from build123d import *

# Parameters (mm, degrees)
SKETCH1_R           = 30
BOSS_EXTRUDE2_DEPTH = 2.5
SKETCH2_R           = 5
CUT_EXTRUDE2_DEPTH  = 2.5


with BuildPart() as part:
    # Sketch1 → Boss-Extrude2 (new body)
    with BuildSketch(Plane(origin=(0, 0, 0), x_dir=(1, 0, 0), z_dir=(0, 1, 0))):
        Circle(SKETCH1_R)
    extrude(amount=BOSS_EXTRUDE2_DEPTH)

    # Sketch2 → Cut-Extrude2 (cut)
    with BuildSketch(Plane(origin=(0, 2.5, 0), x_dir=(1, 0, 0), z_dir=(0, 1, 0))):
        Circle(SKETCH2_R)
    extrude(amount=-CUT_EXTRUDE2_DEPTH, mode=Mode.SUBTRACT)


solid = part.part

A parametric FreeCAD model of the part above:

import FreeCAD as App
import Part
import Sketcher
from FreeCAD import Vector
Q = App.Units.Quantity

doc = App.newDocument("Part")
body = doc.addObject("PartDesign::Body", "Body")

# Sketch on XZ plane
sketch1 = body.newObject("Sketcher::SketchObject", "Sketch")
sketch1.AttachmentSupport = (doc.getObject("XZ_Plane"), [""])
sketch1.MapMode = "FlatFace"
sketch1.addGeometry(Part.Circle(Vector(0, 0, 0), Vector(0, 0, 1), 30), False)
sketch1.addConstraint([
    Sketcher.Constraint("Coincident", 0, 3, -1, 1),
    Sketcher.Constraint("Diameter", 0, Q("60 mm")),
])
pad1 = body.newObject("PartDesign::Pad", "Pad")
pad1.Profile = sketch1
pad1.Length = 2.5
pad1.Reversed = True

# Sketch on XZ plane
sketch2 = body.newObject("Sketcher::SketchObject", "Sketch001")
sketch2.AttachmentSupport = (doc.getObject("XZ_Plane"), [""])
sketch2.MapMode = "FlatFace"
sketch2.AttachmentOffset = App.Placement(Vector(0, 0, -2.5), App.Rotation())
sketch2.addGeometry(Part.Circle(Vector(0, 0, 0), Vector(0, 0, 1), 5), False)
sketch2.addConstraint([
    Sketcher.Constraint("Coincident", 0, 3, -1, 1),
    Sketcher.Constraint("Diameter", 0, Q("10 mm")),
])
pocket1 = body.newObject("PartDesign::Pocket", "Pocket")
pocket1.Profile = sketch2
pocket1.Length = 2.5
pocket1.Reversed = True

doc.recompute()
